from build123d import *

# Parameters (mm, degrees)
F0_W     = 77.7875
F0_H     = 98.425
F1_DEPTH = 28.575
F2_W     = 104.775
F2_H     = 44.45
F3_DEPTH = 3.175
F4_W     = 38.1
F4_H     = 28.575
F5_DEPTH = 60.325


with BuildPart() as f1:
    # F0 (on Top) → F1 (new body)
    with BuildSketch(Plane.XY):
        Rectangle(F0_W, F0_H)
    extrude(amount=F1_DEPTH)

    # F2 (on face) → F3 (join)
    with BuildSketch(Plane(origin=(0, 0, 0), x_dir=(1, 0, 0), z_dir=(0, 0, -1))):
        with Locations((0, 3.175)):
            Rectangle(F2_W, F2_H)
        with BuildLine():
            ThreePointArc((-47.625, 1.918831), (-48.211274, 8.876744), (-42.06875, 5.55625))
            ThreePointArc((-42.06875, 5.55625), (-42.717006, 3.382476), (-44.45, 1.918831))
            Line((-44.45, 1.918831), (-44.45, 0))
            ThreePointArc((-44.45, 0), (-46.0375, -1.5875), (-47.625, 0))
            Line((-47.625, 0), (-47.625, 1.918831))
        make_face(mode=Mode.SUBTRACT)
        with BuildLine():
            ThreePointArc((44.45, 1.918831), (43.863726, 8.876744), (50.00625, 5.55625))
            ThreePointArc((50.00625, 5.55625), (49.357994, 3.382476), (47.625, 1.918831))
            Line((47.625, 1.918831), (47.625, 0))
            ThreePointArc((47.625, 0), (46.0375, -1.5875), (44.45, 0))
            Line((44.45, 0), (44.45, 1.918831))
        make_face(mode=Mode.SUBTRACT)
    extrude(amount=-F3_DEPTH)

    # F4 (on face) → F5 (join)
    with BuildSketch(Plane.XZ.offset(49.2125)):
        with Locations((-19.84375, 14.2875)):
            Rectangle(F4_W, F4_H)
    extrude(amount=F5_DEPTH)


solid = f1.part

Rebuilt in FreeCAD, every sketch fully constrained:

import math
import FreeCAD as App
import Part
import Sketcher
from FreeCAD import Vector
Q = App.Units.Quantity


def add_polygon(sketch, points):
    """Adds a closed chain of lines whose ends are joined by coincident constraints."""
    first, n = sketch.GeometryCount, len(points)
    for a, b in zip(points, points[1:] + points[:1]):
        sketch.addGeometry(Part.LineSegment(App.Vector(*a, 0), App.Vector(*b, 0)), False)
    for i in range(n):
        sketch.addConstraint(Sketcher.Constraint("Coincident", first + i, 2, first + (i + 1) % n, 1))

doc = App.newDocument("Part")
body = doc.addObject("PartDesign::Body", "Body")

# Sketch on XY plane
sketch1 = body.newObject("Sketcher::SketchObject", "Sketch")
sketch1.AttachmentSupport = (doc.getObject("XY_Plane"), [""])
sketch1.MapMode = "FlatFace"
add_polygon(sketch1, [(-39, 49), (-39, -49), (39, -49), (39, 49)])  # lines 0-3
sketch1.addConstraint([
    Sketcher.Constraint("Vertical", 0),
    Sketcher.Constraint("Horizontal", 1),
    Sketcher.Constraint("Vertical", 2),
    Sketcher.Constraint("Horizontal", 3),
    Sketcher.Constraint("Symmetric", 0, 2, 2, 2, -1, 1),
    Sketcher.Constraint("DistanceX", 1, 1, 1, 2, Q("3.0625 in")),
    Sketcher.Constraint("DistanceY", 0, 2, 0, 1, Q("3.875 in")),
])
pad1 = body.newObject("PartDesign::Pad", "Pad")
pad1.Profile = sketch1
pad1.Length = Q("1.125 in")

# Sketch on XY plane
sketch2 = body.newObject("Sketcher::SketchObject", "Sketch001")
sketch2.AttachmentSupport = (doc.getObject("XY_Plane"), [""])
sketch2.MapMode = "FlatFace"
add_polygon(sketch2, [(-52.4, -25.4), (-52.4, 19.1), (52.4, 19.1), (52.4, -25.4)])  # lines 0-3
sketch2.addGeometry(Part.LineSegment(Vector(-47.6, 0, 0), Vector(-47.6, -1.9, 0)), False)  # 4
sketch2.addGeometry(Part.ArcOfCircle(Part.Circle(Vector(-46, -5.6, 0), Vector(0, 0, 1), 4), math.radians(114), math.radians(360)), False)  # 5
sketch2.addGeometry(Part.ArcOfCircle(Part.Circle(Vector(-46, -5.6, 0), Vector(0, 0, 1), 4), math.radians(0), math.radians(66)), False)  # 6
sketch2.addGeometry(Part.LineSegment(Vector(-44.5, -1.9, 0), Vector(-44.5, 0, 0)), False)  # 7
sketch2.addGeometry(Part.ArcOfCircle(Part.Circle(Vector(-46, 0, 0), Vector(0, 0, 1), 1.6), math.radians(0), math.radians(180)), False)  # 8
sketch2.addGeometry(Part.LineSegment(Vector(44.5, 0, 0), Vector(44.5, -1.9, 0)), False)  # 9
sketch2.addGeometry(Part.ArcOfCircle(Part.Circle(Vector(46, -5.6, 0), Vector(0, 0, 1), 4), math.radians(114), math.radians(360)), False)  # 10
sketch2.addGeometry(Part.ArcOfCircle(Part.Circle(Vector(46, -5.6, 0), Vector(0, 0, 1), 4), math.radians(0), math.radians(66)), False)  # 11
sketch2.addGeometry(Part.LineSegment(Vector(47.6, -1.9, 0), Vector(47.6, 0, 0)), False)  # 12
sketch2.addGeometry(Part.ArcOfCircle(Part.Circle(Vector(46, 0, 0), Vector(0, 0, 1), 1.6), math.radians(0), math.radians(180)), False)  # 13
sketch2.addConstraint([
    Sketcher.Constraint("Coincident", 4, 2, 5, 1),
    Sketcher.Constraint("Tangent", 5, 2, 6, 1),
    Sketcher.Constraint("Coincident", 6, 2, 7, 1),
    Sketcher.Constraint("Tangent", 7, 2, 8, 1),
    Sketcher.Constraint("Tangent", 8, 2, 4, 1),
    Sketcher.Constraint("Coincident", 9, 2, 10, 1),
    Sketcher.Constraint("Tangent", 10, 2, 11, 1),
    Sketcher.Constraint("Coincident", 11, 2, 12, 1),
    Sketcher.Constraint("Tangent", 12, 2, 13, 1),
    Sketcher.Constraint("Tangent", 13, 2, 9, 1),
    Sketcher.Constraint("Vertical", 0),
    Sketcher.Constraint("Horizontal", 1),
    Sketcher.Constraint("Vertical", 2),
    Sketcher.Constraint("Horizontal", 3),
    Sketcher.Constraint("Vertical", 4),
    Sketcher.Constraint("Vertical", 7),
    Sketcher.Constraint("Vertical", 9),
    Sketcher.Constraint("Vertical", 12),
    Sketcher.Constraint("Equal", 5, 6),
    Sketcher.Constraint("Equal", 6, 10),
    Sketcher.Constraint("Equal", 10, 11),
    Sketcher.Constraint("Equal", 8, 13),
    Sketcher.Constraint("Symmetric", 8, 3, 13, 3, -1, 1),
    Sketcher.Constraint("Symmetric", 5, 3, 10, 3, -2),
    Sketcher.Constraint("PointOnObject", 8, 3, -1),
    Sketcher.Constraint("Horizontal", 11, 3, 5, 2),
    Sketcher.Constraint("Horizontal", 4, 2, 6, 2),
    Sketcher.Constraint("Horizontal", 5, 2, 10, 2),
    Sketcher.Constraint("DistanceY", 2, 2, -1, 1, Q("1 in")),
    Sketcher.Constraint("Radius", 5, Q("0.15625 in")),
    Sketcher.Constraint("Radius", 8, Q("0.0625 in")),
    Sketcher.Constraint("DistanceY", 0, 1, 0, 2, Q("1.75 in")),
    Sketcher.Constraint("DistanceX", 1, 1, 1, 2, Q("4.125 in")),
    Sketcher.Constraint("DistanceX", 6, 2, -1, 1, Q("1.75 in")),
    Sketcher.Constraint("DistanceX", 0, 2, 8, 3, Q("0.25 in")),
    Sketcher.Constraint("DistanceY", 5, 3, -1, 1, Q("0.21875 in")),
])
pad2 = body.newObject("PartDesign::Pad", "Pad001")
pad2.Profile = sketch2
pad2.Length = Q("0.125 in")

# Sketch on XZ plane
sketch3 = body.newObject("Sketcher::SketchObject", "Sketch002")
sketch3.AttachmentSupport = (doc.getObject("XZ_Plane"), [""])
sketch3.MapMode = "FlatFace"
sketch3.AttachmentOffset = App.Placement(Vector(0, 0, 1.9375 * 25.4), App.Rotation())
add_polygon(sketch3, [(-39, 29), (-39, 0), (-1, 0), (-1, 29)])  # lines 0-3
sketch3.addConstraint([
    Sketcher.Constraint("Vertical", 0),
    Sketcher.Constraint("Horizontal", 1),
    Sketcher.Constraint("Vertical", 2),
    Sketcher.Constraint("Horizontal", 3),
    Sketcher.Constraint("PointOnObject", 0, 2, -1),
    Sketcher.Constraint("DistanceX", 1, 1, 1, 2, Q("1.5 in")),
    Sketcher.Constraint("DistanceY", 0, 2, 0, 1, Q("1.125 in")),
    Sketcher.Constraint("DistanceX", 0, 2, -1, 1, Q("1.53125 in")),
])
pad3 = body.newObject("PartDesign::Pad", "Pad002")
pad3.Profile = sketch3
pad3.Length = Q("2.375 in")

doc.recompute()
